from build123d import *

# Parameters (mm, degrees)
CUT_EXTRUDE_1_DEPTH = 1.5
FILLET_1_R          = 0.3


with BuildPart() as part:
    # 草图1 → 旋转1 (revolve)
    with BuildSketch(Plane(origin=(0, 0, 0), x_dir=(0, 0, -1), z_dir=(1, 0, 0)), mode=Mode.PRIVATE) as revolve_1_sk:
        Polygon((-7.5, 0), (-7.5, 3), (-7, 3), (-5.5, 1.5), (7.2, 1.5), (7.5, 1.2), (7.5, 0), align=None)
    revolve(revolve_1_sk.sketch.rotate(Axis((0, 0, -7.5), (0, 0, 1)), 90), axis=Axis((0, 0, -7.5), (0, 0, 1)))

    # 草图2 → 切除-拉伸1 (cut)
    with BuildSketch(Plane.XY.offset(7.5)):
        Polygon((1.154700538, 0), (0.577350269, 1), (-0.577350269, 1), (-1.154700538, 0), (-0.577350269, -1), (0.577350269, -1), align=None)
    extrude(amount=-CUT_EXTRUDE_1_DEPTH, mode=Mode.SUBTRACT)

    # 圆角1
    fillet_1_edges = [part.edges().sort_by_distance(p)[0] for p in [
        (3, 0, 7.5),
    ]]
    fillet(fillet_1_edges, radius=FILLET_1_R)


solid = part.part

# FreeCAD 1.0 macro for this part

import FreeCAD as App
import Part
import Sketcher

V = App.Vector
Q = App.Units.Quantity


def edges_at(feature, points):
    """Names of the edges that pass closest to the given points."""
    edges = feature.Shape.Edges
    near = lambda p: min(range(len(edges)), key=lambda i: edges[i].distToShape(Part.Vertex(*p))[0])
    return sorted({f"Edge{near(p) + 1}" for p in points})


def add_polygon(sketch, points):
    """Adds a closed chain of lines whose ends are joined by coincident constraints."""
    first, n = sketch.GeometryCount, len(points)
    for a, b in zip(points, points[1:] + points[:1]):
        sketch.addGeometry(Part.LineSegment(App.Vector(*a, 0), App.Vector(*b, 0)), False)
    for i in range(n):
        sketch.addConstraint(Sketcher.Constraint("Coincident", first + i, 2, first + (i + 1) % n, 1))

doc = App.newDocument("Part")
body = doc.addObject("PartDesign::Body", "Body")

sketch1 = body.newObject("Sketcher::SketchObject", "Sketch")
sketch1.AttachmentSupport = (doc.getObject("YZ_Plane"), [""])
sketch1.MapMode = "FlatFace"
add_polygon(sketch1, [(3, 7.5), (0, 7.5), (0, -7.5), (1.2, -7.5), (1.5, -7.2), (1.5, 5.5), (3, 7)])
sketch1.addConstraint([
    Sketcher.Constraint("Horizontal", 0),
    Sketcher.Constraint("Vertical", 1),
    Sketcher.Constraint("Horizontal", 2),
    Sketcher.Constraint("Vertical", 4),
    Sketcher.Constraint("Vertical", 6),
    Sketcher.Constraint("Symmetric", 0, 2, 1, 2, -1, 1),
    Sketcher.Constraint("Parallel", 3, 5),
    Sketcher.Constraint("DistanceX", 0, 2, 0, 1, Q("3 mm")),
    Sketcher.Constraint("DistanceY", 1, 2, 1, 1, Q("15 mm")),
    Sketcher.Constraint("Angle", 3, Q("45 deg")),
    Sketcher.Constraint("DistanceX", 2, 1, 2, 2, Q("1.2 mm")),
    Sketcher.Constraint("DistanceY", 4, 1, 4, 2, Q("12.7 mm")),
    Sketcher.Constraint("DistanceY", 4, 2, 0, 2, Q("2 mm")),
])
revolution = body.newObject("PartDesign::Revolution", "Revolution")
revolution.Profile = sketch1
revolution.ReferenceAxis = (sketch1, ["V_Axis"])
revolution.Angle = 360

sketch2 = body.newObject("Sketcher::SketchObject", "Sketch001")
sketch2.AttachmentSupport = (doc.getObject("XY_Plane"), [""])
sketch2.MapMode = "FlatFace"
sketch2.AttachmentOffset = App.Placement(V(0, 0, 7.5), App.Rotation())
add_polygon(sketch2, [(1.2, 0), (0.6, 1), (-0.6, 1), (-1.2, 0), (-0.6, -1), (0.6, -1)])
sketch2.addConstraint([
    Sketcher.Constraint("Horizontal", 1),
    Sketcher.Constraint("Horizontal", 4),
    Sketcher.Constraint("Symmetric", 0, 2, 3, 2, -1, 1),
    Sketcher.Constraint("Symmetric", 2, 2, 5, 2, -1, 1),
    Sketcher.Constraint("PointOnObject", 2, 2, -1),
    Sketcher.Constraint("Parallel", 2, 5),
    Sketcher.Constraint("Vertical", 1, 2, 3, 2),
    Sketcher.Constraint("Angle", 0, Q("120 deg")),
    Sketcher.Constraint("DistanceY", -1, 1, 0, 2, Q("1 mm")),
    Sketcher.Constraint("DistanceX", 1, 2, 1, 1, Q("1.154701 mm")),
])
pocket1 = body.newObject("PartDesign::Pocket", "Pocket")
pocket1.Profile = sketch2
pocket1.Length = 1.5
doc.recompute()

fillet = body.newObject("PartDesign::Fillet", "Fillet")
fillet.Base = (pocket1, edges_at(pocket1, [(3, 0, 7.5)]))
fillet.Radius = 0.3

doc.recompute()
